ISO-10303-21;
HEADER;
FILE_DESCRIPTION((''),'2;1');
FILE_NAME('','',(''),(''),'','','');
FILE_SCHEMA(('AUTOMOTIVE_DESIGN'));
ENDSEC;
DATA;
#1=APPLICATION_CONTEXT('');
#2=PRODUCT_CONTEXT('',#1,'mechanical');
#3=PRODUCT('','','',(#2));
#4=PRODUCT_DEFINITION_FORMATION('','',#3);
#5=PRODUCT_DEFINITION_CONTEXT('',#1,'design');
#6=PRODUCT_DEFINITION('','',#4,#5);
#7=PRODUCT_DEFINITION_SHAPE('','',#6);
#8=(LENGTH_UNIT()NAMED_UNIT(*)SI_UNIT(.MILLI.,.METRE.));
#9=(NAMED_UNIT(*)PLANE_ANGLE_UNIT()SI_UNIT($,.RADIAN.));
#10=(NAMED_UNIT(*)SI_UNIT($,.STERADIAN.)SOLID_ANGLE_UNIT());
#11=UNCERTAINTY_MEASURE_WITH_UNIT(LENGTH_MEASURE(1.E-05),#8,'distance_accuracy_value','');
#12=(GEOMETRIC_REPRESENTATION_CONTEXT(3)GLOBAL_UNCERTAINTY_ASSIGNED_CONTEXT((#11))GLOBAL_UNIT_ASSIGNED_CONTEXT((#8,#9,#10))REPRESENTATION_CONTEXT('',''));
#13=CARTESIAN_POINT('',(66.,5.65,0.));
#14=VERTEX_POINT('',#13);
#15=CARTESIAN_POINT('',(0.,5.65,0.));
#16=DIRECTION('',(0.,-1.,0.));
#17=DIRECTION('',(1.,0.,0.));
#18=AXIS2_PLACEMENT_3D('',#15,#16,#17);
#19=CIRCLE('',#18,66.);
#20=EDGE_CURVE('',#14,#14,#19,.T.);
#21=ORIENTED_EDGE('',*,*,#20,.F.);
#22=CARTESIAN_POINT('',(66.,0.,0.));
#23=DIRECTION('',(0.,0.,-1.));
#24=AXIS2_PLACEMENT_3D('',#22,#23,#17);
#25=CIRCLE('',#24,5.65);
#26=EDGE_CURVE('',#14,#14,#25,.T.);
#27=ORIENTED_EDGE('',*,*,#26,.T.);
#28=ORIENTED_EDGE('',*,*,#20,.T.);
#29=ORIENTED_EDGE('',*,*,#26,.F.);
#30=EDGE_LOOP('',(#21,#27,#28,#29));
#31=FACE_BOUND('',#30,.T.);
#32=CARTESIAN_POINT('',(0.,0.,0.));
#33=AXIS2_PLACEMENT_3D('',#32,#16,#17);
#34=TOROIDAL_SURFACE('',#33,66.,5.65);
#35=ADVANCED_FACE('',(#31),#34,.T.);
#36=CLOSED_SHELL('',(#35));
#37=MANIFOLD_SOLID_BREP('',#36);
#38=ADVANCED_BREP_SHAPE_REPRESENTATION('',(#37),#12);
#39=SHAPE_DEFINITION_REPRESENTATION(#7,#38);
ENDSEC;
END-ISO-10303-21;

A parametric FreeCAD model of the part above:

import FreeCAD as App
import Part
import Sketcher

V = App.Vector

doc = App.newDocument("Part")
body = doc.addObject("PartDesign::Body", "Body")

# Sketch on YZ plane
sketch1 = body.newObject("Sketcher::SketchObject", "Sketch")
sketch1.AttachmentSupport = (doc.getObject("YZ_Plane"), [""])
sketch1.MapMode = "FlatFace"
sketch1.addGeometry(Part.Circle(V(0, -66, 0), V(0, 0, 1), 6), False)
sketch1.addConstraint([
    Sketcher.Constraint("PointOnObject", 0, 3, -2),
    Sketcher.Constraint("Diameter", 0, 11.3),
    Sketcher.Constraint("DistanceY", 0, 3, -1, 1, 66.0),
])

# Sketch on XZ plane
sketch2 = body.newObject("Sketcher::SketchObject", "Sketch001")
sketch2.AttachmentSupport = (doc.getObject("XZ_Plane"), [""])
sketch2.MapMode = "FlatFace"
sketch2.addGeometry(Part.Circle(V(0, 0, 0), V(0, 0, 1), 66), False)
sketch2.addConstraint([
    Sketcher.Constraint("Coincident", 0, 3, -1, 1),
    Sketcher.Constraint("Diameter", 0, 132.0),
])
doc.recompute()

additivepipe = body.newObject("PartDesign::AdditivePipe", "AdditivePipe")
additivepipe.Profile = sketch1
additivepipe.Spine = (sketch2, ["Edge1"])

doc.recompute()
